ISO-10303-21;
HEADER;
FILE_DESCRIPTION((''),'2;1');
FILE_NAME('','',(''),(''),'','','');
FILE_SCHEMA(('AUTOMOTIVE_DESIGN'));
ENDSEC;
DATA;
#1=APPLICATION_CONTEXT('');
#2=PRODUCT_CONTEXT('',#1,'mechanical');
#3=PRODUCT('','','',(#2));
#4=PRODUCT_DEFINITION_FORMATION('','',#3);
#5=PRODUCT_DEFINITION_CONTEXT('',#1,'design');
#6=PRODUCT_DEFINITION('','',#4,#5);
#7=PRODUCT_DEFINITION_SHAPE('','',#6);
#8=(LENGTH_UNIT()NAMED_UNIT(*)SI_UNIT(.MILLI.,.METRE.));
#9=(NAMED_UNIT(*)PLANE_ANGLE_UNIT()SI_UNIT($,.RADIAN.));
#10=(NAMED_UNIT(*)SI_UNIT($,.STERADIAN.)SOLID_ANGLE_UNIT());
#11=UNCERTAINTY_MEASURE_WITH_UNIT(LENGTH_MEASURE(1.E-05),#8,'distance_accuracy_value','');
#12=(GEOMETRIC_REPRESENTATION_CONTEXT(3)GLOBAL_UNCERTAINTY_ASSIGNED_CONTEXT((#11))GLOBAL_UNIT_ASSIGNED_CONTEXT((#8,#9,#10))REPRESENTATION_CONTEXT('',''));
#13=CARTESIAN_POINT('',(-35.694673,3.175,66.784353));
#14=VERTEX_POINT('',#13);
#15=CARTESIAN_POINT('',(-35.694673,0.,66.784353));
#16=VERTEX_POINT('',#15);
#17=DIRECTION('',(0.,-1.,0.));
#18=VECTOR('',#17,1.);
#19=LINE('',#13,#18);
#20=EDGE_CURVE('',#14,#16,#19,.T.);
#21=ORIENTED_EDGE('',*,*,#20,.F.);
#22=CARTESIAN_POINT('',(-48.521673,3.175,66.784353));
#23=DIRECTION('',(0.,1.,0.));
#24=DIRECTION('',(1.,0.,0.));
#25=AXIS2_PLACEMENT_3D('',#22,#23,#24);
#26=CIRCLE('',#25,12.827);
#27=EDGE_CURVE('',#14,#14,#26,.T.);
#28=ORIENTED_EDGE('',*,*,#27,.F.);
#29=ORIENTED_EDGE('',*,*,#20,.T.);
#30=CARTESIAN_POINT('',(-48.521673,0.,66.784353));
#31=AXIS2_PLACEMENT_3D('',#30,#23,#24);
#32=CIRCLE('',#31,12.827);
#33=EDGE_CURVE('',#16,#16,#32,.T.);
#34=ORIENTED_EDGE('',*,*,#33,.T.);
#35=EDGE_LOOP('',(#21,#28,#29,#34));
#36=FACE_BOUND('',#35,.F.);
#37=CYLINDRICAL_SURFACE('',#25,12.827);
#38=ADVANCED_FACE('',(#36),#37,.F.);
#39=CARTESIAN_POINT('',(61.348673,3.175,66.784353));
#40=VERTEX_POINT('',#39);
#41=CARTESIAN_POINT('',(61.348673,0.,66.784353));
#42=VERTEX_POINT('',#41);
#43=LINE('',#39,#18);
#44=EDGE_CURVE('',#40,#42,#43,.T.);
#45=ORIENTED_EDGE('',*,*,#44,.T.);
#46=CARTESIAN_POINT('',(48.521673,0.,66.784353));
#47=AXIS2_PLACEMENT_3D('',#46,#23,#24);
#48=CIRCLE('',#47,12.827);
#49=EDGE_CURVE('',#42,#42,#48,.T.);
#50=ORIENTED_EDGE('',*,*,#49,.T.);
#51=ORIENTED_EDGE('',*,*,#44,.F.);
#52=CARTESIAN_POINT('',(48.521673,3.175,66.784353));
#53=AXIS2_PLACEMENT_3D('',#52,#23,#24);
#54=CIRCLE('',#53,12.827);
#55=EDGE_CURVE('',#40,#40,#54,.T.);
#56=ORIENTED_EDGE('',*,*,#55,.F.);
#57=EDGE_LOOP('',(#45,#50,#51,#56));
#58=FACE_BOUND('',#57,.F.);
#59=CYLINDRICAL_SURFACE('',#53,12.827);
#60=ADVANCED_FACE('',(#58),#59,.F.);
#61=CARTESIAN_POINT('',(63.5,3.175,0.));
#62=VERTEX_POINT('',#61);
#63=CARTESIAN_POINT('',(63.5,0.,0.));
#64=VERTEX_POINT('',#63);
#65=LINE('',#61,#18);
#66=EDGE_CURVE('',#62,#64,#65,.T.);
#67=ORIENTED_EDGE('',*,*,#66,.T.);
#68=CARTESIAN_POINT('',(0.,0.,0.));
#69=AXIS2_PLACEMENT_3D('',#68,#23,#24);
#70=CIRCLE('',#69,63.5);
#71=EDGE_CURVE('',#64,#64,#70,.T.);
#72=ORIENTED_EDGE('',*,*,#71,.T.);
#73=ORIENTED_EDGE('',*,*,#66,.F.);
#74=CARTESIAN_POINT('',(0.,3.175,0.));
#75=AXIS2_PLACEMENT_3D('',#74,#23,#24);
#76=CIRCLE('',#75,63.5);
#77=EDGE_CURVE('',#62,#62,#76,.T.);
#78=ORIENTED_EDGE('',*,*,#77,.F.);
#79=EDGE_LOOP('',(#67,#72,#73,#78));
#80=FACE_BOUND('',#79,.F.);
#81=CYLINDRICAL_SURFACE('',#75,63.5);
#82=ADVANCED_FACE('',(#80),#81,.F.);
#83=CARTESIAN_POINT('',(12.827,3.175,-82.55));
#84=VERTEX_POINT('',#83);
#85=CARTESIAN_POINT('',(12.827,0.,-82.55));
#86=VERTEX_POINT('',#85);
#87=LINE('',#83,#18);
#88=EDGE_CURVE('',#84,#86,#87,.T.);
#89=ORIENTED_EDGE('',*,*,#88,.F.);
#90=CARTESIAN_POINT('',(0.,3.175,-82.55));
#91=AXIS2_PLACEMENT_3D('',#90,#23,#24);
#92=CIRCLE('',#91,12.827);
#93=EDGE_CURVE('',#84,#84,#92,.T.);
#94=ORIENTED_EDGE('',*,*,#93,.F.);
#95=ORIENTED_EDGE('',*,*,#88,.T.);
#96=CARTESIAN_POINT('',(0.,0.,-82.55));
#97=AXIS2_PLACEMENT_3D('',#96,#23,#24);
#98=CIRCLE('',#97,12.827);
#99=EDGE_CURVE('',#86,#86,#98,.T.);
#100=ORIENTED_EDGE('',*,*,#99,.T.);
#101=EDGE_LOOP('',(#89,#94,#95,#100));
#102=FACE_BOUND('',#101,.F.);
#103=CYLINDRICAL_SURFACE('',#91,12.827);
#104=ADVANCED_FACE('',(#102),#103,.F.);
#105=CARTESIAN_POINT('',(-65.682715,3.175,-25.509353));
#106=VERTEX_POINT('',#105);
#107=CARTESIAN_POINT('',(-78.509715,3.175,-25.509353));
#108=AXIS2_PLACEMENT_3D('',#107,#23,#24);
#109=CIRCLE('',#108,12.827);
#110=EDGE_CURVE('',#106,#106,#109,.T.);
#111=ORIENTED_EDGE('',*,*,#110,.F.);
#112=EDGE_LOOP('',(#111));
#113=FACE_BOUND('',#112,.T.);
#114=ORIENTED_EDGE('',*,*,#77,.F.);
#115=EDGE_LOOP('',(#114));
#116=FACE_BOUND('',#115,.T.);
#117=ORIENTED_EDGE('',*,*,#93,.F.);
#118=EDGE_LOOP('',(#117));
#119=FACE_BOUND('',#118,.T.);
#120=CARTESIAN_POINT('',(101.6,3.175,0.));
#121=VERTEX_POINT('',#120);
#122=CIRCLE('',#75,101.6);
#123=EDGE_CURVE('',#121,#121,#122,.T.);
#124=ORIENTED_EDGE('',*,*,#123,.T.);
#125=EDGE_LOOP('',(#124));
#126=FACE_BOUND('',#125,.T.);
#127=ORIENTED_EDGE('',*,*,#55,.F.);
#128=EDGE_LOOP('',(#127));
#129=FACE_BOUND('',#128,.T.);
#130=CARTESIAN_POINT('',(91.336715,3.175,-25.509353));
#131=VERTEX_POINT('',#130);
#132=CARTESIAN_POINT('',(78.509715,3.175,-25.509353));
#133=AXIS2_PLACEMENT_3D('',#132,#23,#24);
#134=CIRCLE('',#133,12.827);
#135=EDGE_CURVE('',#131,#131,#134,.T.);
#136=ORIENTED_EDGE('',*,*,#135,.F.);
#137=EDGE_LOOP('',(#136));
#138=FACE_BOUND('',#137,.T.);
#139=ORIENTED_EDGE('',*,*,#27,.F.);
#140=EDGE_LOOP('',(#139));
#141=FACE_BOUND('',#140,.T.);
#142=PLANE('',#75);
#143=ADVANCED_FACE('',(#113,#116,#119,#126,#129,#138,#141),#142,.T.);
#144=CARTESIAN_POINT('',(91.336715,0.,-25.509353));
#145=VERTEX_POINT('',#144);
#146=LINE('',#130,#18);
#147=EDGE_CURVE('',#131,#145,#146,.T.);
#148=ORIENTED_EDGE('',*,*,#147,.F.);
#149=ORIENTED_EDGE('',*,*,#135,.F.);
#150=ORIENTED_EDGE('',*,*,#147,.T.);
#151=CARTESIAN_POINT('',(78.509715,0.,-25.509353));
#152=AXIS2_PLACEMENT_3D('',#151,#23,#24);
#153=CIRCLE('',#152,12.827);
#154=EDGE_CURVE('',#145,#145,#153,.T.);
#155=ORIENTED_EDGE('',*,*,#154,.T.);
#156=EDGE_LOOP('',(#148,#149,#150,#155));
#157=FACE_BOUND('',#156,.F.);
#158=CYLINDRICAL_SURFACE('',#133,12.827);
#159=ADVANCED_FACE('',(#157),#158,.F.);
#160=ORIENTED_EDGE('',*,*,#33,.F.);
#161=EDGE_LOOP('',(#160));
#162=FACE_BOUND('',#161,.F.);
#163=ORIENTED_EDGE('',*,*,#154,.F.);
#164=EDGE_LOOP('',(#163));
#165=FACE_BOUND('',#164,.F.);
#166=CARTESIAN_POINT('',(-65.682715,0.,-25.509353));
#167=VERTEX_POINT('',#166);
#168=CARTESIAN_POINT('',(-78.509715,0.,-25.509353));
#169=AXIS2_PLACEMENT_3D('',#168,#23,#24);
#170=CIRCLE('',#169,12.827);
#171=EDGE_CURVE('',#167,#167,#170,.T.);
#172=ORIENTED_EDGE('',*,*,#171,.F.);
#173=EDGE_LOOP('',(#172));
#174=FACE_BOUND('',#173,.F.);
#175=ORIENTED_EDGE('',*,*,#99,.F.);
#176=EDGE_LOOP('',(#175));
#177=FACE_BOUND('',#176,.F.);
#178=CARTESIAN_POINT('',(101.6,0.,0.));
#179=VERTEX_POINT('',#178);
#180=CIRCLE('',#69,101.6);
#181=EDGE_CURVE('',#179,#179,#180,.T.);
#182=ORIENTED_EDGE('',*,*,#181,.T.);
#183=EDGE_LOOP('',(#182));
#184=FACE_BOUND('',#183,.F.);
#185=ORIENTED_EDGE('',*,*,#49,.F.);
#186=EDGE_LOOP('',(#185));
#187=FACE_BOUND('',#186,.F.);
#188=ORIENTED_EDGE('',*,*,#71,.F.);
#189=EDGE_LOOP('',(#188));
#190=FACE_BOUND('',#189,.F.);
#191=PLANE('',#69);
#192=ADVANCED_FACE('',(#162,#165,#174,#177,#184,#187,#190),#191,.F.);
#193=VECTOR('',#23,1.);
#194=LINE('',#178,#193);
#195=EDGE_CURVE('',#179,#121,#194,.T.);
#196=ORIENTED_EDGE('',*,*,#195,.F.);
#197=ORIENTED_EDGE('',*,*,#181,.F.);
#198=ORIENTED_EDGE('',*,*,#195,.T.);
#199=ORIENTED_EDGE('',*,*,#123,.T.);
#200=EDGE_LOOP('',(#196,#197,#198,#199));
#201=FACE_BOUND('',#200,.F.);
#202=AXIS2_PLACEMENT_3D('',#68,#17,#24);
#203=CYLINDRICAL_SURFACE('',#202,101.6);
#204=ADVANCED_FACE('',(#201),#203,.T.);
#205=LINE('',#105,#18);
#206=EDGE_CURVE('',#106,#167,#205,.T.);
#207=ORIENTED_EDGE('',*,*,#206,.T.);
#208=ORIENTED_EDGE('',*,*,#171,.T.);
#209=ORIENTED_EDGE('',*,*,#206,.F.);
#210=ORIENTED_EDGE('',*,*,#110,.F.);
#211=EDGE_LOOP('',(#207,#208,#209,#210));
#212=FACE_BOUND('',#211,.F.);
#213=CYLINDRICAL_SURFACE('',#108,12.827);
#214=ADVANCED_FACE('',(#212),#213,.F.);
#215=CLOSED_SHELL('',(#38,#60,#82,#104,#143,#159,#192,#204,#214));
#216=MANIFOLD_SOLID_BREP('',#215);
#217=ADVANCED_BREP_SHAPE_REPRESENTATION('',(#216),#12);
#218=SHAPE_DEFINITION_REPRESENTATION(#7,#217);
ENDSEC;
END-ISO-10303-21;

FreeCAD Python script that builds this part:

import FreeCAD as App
import Part
import Sketcher

V = App.Vector
Q = App.Units.Quantity

doc = App.newDocument("Part")
body = doc.addObject("PartDesign::Body", "Body")

sketch1 = body.newObject("Sketcher::SketchObject", "Sketch")
sketch1.AttachmentSupport = (doc.getObject("XZ_Plane"), [""])
sketch1.MapMode = "FlatFace"
sketch1.addGeometry(Part.Circle(V(0, 0, 0), V(0, 0, 1), 102), False)
sketch1.addConstraint([
    Sketcher.Constraint("Coincident", 0, 3, -1, 1),
    Sketcher.Constraint("Diameter", 0, Q("8 in")),
])
pad1 = body.newObject("PartDesign::Pad", "Pad")
pad1.Profile = sketch1
pad1.Length = Q("0.125 in")
pad1.Reversed = True

sketch2 = body.newObject("Sketcher::SketchObject", "Sketch001")
sketch2.AttachmentSupport = (doc.getObject("XZ_Plane"), [""])
sketch2.MapMode = "FlatFace"
sketch2.AttachmentOffset = App.Placement(V(0, 0, -0.125 * 25.4), App.Rotation())
sketch2.addGeometry([
    Part.Circle(V(0, -83, 0), V(0, 0, 1), 13),
    Part.Circle(V(79, -26, 0), V(0, 0, 1), 13),
    Part.Circle(V(49, 67, 0), V(0, 0, 1), 13),
    Part.Circle(V(-49, 67, 0), V(0, 0, 1), 13),
    Part.Circle(V(-79, -26, 0), V(0, 0, 1), 13),
], False)
sketch2.addConstraint([
    Sketcher.Constraint("Equal", 0, 1),
    Sketcher.Constraint("Equal", 1, 2),
    Sketcher.Constraint("Equal", 2, 3),
    Sketcher.Constraint("Equal", 3, 4),
    Sketcher.Constraint("Symmetric", 2, 3, 3, 3, -2),
    Sketcher.Constraint("Symmetric", 1, 3, 4, 3, -2),
    Sketcher.Constraint("PointOnObject", 0, 3, -2),
    Sketcher.Constraint("Diameter", 0, Q("1.01 in")),
    Sketcher.Constraint("DistanceY", 0, 3, -1, 1, Q("3.25 in")),
    Sketcher.Constraint("DistanceX", 4, 3, 1, 3, 157.019431),
    Sketcher.Constraint("DistanceY", 1, 3, -1, 1, 25.509353),
    Sketcher.Constraint("DistanceX", -1, 1, 2, 3, 48.521673),
    Sketcher.Constraint("DistanceY", -1, 1, 2, 3, 66.784353),
])
pocket1 = body.newObject("PartDesign::Pocket", "Pocket")
pocket1.Profile = sketch2
pocket1.Length = Q("0.125 in")
pocket1.Reversed = True

sketch3 = body.newObject("Sketcher::SketchObject", "Sketch002")
sketch3.AttachmentSupport = (doc.getObject("XZ_Plane"), [""])
sketch3.MapMode = "FlatFace"
sketch3.AttachmentOffset = App.Placement(V(0, 0, -0.125 * 25.4), App.Rotation())
sketch3.addGeometry(Part.Circle(V(0, 0, 0), V(0, 0, 1), 64), False)
sketch3.addConstraint([
    Sketcher.Constraint("Coincident", 0, 3, -1, 1),
    Sketcher.Constraint("Diameter", 0, Q("5 in")),
])
pocket2 = body.newObject("PartDesign::Pocket", "Pocket001")
pocket2.Profile = sketch3
pocket2.Type = "ThroughAll"
pocket2.Reversed = True

doc.recompute()
